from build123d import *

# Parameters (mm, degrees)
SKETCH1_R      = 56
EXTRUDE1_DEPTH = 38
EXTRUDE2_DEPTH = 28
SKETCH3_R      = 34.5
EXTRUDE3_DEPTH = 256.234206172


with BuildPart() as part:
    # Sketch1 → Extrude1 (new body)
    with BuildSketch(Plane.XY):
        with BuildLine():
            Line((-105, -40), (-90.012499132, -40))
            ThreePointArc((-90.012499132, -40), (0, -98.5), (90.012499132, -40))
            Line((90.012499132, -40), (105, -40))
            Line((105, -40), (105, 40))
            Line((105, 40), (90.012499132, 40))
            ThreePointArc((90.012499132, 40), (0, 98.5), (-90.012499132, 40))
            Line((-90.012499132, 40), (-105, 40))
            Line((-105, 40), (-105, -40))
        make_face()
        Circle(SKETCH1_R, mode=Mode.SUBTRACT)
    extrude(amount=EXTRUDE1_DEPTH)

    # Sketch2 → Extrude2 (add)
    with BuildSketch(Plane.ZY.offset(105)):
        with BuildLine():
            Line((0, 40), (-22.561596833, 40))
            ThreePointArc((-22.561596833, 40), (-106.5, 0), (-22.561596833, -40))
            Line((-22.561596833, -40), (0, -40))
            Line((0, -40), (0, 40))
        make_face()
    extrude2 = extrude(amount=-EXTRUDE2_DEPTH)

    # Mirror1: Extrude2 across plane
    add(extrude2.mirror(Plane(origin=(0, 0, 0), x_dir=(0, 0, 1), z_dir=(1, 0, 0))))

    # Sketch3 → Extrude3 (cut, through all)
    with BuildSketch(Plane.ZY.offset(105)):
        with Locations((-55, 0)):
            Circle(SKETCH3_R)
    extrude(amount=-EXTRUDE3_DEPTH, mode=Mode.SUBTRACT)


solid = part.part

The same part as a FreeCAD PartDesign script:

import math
import FreeCAD as App
import Part
import Sketcher
from FreeCAD import Vector
Q = App.Units.Quantity

doc = App.newDocument("Part")
params = doc.addObject("Spreadsheet::Sheet", "Params")
for row, (alias, value) in enumerate([
    ("sketch1_diameter", "112 mm"),
    ("sketch1_radius", "98.5 mm"),
    ("sketch1_height", "80 mm"),
    ("pad1_length", "38 mm"),
    ("sketch2_radius", "51.5 mm"),
    ("sketch2_width", "80 mm"),
    ("pad2_length", "28 mm"),
    ("sketch3_diameter", "69 mm"),
], start=1):
    params.set(f"A{row}", alias)
    params.set(f"B{row}", "=" + value)
    params.setAlias(f"B{row}", alias)

body = doc.addObject("PartDesign::Body", "Body")

# Sketch on XY plane
sketch1 = body.newObject("Sketcher::SketchObject", "Sketch")
sketch1.AttachmentSupport = (doc.getObject("XY_Plane"), [""])
sketch1.MapMode = "FlatFace"
sketch1.addGeometry([
    Part.LineSegment(Vector(-105, -40, 0), Vector(-90, -40, 0)),  # 0
    Part.ArcOfCircle(Part.Circle(Vector(0, 0, 0), Vector(0, 0, 1), 98), math.radians(-156), math.radians(-24)),  # 1
    Part.LineSegment(Vector(90, -40, 0), Vector(105, -40, 0)),  # 2
    Part.LineSegment(Vector(105, -40, 0), Vector(105, 40, 0)),  # 3
    Part.LineSegment(Vector(105, 40, 0), Vector(90, 40, 0)),  # 4
    Part.ArcOfCircle(Part.Circle(Vector(0, 0, 0), Vector(0, 0, 1), 98), math.radians(24), math.radians(156)),  # 5
    Part.LineSegment(Vector(-90, 40, 0), Vector(-105, 40, 0)),  # 6
    Part.LineSegment(Vector(-105, 40, 0), Vector(-105, -40, 0)),  # 7
    Part.Circle(Vector(0, 0, 0), Vector(0, 0, 1), 56),  # 8
], False)
sketch1.addConstraint([
    Sketcher.Constraint("Coincident", 0, 2, 1, 1),
    Sketcher.Constraint("Coincident", 1, 2, 2, 1),
    Sketcher.Constraint("Coincident", 2, 2, 3, 1),
    Sketcher.Constraint("Coincident", 3, 2, 4, 1),
    Sketcher.Constraint("Coincident", 4, 2, 5, 1),
    Sketcher.Constraint("Coincident", 5, 2, 6, 1),
    Sketcher.Constraint("Coincident", 6, 2, 7, 1),
    Sketcher.Constraint("Coincident", 7, 2, 0, 1),
    Sketcher.Constraint("Horizontal", 0),
    Sketcher.Constraint("Horizontal", 2),
    Sketcher.Constraint("Vertical", 3),
    Sketcher.Constraint("Horizontal", 4),
    Sketcher.Constraint("Horizontal", 6),
    Sketcher.Constraint("Vertical", 7),
    Sketcher.Constraint("Coincident", 1, 3, -1, 1),
    Sketcher.Constraint("Coincident", 5, 3, -1, 1),
    Sketcher.Constraint("Coincident", 8, 3, -1, 1),
    Sketcher.Constraint("Equal", 1, 5),
    Sketcher.Constraint("Symmetric", 2, 2, 6, 2, -1, 1),
    Sketcher.Constraint("Horizontal", 0, 2, 1, 2),
    Sketcher.Constraint("Horizontal", 4, 2, 5, 2),
    Sketcher.Constraint("Diameter", 8, Q("112 mm")),
    Sketcher.Constraint("Radius", 1, Q("98.5 mm")),
    Sketcher.Constraint("DistanceY", 3, 1, 3, 2, Q("80 mm")),
    Sketcher.Constraint("DistanceX", -1, 1, 2, 2, Q("105 mm")),
])
sketch1.setExpression("Constraints[21]", "Params.sketch1_diameter")
sketch1.setExpression("Constraints[22]", "Params.sketch1_radius")
sketch1.setExpression("Constraints[23]", "Params.sketch1_height")
pad1 = body.newObject("PartDesign::Pad", "Pad")
pad1.Profile = sketch1
pad1.setExpression("Length", "Params.pad1_length")

# Sketch on YZ plane
sketch2 = body.newObject("Sketcher::SketchObject", "Sketch001")
sketch2.AttachmentSupport = (doc.getObject("YZ_Plane"), [""])
sketch2.MapMode = "FlatFace"
sketch2.AttachmentOffset = App.Placement(Vector(0, 0, -105), App.Rotation())
sketch2.addGeometry([
    Part.LineSegment(Vector(40, 0, 0), Vector(40, -23, 0)),
    Part.ArcOfCircle(Part.Circle(Vector(0, -55, 0), Vector(0, 0, 1), 52), math.radians(141), math.radians(399)),
    Part.LineSegment(Vector(-40, -23, 0), Vector(-40, 0, 0)),
    Part.LineSegment(Vector(-40, 0, 0), Vector(40, 0, 0)),
], False)
sketch2.addConstraint([
    Sketcher.Constraint("Coincident", 0, 2, 1, 2),
    Sketcher.Constraint("Coincident", 1, 1, 2, 1),
    Sketcher.Constraint("Coincident", 2, 2, 3, 1),
    Sketcher.Constraint("Coincident", 3, 2, 0, 1),
    Sketcher.Constraint("Vertical", 0),
    Sketcher.Constraint("Vertical", 2),
    Sketcher.Constraint("Horizontal", 3),
    Sketcher.Constraint("Symmetric", 2, 2, 3, 2, -1, 1),
    Sketcher.Constraint("PointOnObject", 1, 3, -2),
    Sketcher.Constraint("Radius", 1, Q("51.5 mm")),
    Sketcher.Constraint("DistanceX", 3, 1, 3, 2, Q("80 mm")),
    Sketcher.Constraint("DistanceY", 1, 3, -1, 1, Q("55 mm")),
])
sketch2.setExpression("Constraints[9]", "Params.sketch2_radius")
sketch2.setExpression("Constraints[10]", "Params.sketch2_width")
pad2 = body.newObject("PartDesign::Pad", "Pad001")
pad2.Profile = sketch2
pad2.setExpression("Length", "Params.pad2_length")
doc.recompute()

mirrored = body.newObject("PartDesign::Mirrored", "Mirrored")
mirrored.Originals = [pad2]
mirrored.MirrorPlane = (doc.getObject("YZ_Plane"), [""])
body.Tip = mirrored

# Sketch on YZ plane
sketch3 = body.newObject("Sketcher::SketchObject", "Sketch002")
sketch3.AttachmentSupport = (doc.getObject("YZ_Plane"), [""])
sketch3.MapMode = "FlatFace"
sketch3.AttachmentOffset = App.Placement(Vector(0, 0, -105), App.Rotation())
sketch3.addGeometry(Part.Circle(Vector(0, -55, 0), Vector(0, 0, 1), 34), False)
sketch3.addConstraint([
    Sketcher.Constraint("PointOnObject", 0, 3, -2),
    Sketcher.Constraint("Diameter", 0, Q("69 mm")),
    Sketcher.Constraint("DistanceY", 0, 3, -1, 1, Q("55 mm")),
])
sketch3.setExpression("Constraints[1]", "Params.sketch3_diameter")
pocket1 = body.newObject("PartDesign::Pocket", "Pocket")
pocket1.Profile = sketch3
pocket1.Type = "ThroughAll"
pocket1.Reversed = True

doc.recompute()
